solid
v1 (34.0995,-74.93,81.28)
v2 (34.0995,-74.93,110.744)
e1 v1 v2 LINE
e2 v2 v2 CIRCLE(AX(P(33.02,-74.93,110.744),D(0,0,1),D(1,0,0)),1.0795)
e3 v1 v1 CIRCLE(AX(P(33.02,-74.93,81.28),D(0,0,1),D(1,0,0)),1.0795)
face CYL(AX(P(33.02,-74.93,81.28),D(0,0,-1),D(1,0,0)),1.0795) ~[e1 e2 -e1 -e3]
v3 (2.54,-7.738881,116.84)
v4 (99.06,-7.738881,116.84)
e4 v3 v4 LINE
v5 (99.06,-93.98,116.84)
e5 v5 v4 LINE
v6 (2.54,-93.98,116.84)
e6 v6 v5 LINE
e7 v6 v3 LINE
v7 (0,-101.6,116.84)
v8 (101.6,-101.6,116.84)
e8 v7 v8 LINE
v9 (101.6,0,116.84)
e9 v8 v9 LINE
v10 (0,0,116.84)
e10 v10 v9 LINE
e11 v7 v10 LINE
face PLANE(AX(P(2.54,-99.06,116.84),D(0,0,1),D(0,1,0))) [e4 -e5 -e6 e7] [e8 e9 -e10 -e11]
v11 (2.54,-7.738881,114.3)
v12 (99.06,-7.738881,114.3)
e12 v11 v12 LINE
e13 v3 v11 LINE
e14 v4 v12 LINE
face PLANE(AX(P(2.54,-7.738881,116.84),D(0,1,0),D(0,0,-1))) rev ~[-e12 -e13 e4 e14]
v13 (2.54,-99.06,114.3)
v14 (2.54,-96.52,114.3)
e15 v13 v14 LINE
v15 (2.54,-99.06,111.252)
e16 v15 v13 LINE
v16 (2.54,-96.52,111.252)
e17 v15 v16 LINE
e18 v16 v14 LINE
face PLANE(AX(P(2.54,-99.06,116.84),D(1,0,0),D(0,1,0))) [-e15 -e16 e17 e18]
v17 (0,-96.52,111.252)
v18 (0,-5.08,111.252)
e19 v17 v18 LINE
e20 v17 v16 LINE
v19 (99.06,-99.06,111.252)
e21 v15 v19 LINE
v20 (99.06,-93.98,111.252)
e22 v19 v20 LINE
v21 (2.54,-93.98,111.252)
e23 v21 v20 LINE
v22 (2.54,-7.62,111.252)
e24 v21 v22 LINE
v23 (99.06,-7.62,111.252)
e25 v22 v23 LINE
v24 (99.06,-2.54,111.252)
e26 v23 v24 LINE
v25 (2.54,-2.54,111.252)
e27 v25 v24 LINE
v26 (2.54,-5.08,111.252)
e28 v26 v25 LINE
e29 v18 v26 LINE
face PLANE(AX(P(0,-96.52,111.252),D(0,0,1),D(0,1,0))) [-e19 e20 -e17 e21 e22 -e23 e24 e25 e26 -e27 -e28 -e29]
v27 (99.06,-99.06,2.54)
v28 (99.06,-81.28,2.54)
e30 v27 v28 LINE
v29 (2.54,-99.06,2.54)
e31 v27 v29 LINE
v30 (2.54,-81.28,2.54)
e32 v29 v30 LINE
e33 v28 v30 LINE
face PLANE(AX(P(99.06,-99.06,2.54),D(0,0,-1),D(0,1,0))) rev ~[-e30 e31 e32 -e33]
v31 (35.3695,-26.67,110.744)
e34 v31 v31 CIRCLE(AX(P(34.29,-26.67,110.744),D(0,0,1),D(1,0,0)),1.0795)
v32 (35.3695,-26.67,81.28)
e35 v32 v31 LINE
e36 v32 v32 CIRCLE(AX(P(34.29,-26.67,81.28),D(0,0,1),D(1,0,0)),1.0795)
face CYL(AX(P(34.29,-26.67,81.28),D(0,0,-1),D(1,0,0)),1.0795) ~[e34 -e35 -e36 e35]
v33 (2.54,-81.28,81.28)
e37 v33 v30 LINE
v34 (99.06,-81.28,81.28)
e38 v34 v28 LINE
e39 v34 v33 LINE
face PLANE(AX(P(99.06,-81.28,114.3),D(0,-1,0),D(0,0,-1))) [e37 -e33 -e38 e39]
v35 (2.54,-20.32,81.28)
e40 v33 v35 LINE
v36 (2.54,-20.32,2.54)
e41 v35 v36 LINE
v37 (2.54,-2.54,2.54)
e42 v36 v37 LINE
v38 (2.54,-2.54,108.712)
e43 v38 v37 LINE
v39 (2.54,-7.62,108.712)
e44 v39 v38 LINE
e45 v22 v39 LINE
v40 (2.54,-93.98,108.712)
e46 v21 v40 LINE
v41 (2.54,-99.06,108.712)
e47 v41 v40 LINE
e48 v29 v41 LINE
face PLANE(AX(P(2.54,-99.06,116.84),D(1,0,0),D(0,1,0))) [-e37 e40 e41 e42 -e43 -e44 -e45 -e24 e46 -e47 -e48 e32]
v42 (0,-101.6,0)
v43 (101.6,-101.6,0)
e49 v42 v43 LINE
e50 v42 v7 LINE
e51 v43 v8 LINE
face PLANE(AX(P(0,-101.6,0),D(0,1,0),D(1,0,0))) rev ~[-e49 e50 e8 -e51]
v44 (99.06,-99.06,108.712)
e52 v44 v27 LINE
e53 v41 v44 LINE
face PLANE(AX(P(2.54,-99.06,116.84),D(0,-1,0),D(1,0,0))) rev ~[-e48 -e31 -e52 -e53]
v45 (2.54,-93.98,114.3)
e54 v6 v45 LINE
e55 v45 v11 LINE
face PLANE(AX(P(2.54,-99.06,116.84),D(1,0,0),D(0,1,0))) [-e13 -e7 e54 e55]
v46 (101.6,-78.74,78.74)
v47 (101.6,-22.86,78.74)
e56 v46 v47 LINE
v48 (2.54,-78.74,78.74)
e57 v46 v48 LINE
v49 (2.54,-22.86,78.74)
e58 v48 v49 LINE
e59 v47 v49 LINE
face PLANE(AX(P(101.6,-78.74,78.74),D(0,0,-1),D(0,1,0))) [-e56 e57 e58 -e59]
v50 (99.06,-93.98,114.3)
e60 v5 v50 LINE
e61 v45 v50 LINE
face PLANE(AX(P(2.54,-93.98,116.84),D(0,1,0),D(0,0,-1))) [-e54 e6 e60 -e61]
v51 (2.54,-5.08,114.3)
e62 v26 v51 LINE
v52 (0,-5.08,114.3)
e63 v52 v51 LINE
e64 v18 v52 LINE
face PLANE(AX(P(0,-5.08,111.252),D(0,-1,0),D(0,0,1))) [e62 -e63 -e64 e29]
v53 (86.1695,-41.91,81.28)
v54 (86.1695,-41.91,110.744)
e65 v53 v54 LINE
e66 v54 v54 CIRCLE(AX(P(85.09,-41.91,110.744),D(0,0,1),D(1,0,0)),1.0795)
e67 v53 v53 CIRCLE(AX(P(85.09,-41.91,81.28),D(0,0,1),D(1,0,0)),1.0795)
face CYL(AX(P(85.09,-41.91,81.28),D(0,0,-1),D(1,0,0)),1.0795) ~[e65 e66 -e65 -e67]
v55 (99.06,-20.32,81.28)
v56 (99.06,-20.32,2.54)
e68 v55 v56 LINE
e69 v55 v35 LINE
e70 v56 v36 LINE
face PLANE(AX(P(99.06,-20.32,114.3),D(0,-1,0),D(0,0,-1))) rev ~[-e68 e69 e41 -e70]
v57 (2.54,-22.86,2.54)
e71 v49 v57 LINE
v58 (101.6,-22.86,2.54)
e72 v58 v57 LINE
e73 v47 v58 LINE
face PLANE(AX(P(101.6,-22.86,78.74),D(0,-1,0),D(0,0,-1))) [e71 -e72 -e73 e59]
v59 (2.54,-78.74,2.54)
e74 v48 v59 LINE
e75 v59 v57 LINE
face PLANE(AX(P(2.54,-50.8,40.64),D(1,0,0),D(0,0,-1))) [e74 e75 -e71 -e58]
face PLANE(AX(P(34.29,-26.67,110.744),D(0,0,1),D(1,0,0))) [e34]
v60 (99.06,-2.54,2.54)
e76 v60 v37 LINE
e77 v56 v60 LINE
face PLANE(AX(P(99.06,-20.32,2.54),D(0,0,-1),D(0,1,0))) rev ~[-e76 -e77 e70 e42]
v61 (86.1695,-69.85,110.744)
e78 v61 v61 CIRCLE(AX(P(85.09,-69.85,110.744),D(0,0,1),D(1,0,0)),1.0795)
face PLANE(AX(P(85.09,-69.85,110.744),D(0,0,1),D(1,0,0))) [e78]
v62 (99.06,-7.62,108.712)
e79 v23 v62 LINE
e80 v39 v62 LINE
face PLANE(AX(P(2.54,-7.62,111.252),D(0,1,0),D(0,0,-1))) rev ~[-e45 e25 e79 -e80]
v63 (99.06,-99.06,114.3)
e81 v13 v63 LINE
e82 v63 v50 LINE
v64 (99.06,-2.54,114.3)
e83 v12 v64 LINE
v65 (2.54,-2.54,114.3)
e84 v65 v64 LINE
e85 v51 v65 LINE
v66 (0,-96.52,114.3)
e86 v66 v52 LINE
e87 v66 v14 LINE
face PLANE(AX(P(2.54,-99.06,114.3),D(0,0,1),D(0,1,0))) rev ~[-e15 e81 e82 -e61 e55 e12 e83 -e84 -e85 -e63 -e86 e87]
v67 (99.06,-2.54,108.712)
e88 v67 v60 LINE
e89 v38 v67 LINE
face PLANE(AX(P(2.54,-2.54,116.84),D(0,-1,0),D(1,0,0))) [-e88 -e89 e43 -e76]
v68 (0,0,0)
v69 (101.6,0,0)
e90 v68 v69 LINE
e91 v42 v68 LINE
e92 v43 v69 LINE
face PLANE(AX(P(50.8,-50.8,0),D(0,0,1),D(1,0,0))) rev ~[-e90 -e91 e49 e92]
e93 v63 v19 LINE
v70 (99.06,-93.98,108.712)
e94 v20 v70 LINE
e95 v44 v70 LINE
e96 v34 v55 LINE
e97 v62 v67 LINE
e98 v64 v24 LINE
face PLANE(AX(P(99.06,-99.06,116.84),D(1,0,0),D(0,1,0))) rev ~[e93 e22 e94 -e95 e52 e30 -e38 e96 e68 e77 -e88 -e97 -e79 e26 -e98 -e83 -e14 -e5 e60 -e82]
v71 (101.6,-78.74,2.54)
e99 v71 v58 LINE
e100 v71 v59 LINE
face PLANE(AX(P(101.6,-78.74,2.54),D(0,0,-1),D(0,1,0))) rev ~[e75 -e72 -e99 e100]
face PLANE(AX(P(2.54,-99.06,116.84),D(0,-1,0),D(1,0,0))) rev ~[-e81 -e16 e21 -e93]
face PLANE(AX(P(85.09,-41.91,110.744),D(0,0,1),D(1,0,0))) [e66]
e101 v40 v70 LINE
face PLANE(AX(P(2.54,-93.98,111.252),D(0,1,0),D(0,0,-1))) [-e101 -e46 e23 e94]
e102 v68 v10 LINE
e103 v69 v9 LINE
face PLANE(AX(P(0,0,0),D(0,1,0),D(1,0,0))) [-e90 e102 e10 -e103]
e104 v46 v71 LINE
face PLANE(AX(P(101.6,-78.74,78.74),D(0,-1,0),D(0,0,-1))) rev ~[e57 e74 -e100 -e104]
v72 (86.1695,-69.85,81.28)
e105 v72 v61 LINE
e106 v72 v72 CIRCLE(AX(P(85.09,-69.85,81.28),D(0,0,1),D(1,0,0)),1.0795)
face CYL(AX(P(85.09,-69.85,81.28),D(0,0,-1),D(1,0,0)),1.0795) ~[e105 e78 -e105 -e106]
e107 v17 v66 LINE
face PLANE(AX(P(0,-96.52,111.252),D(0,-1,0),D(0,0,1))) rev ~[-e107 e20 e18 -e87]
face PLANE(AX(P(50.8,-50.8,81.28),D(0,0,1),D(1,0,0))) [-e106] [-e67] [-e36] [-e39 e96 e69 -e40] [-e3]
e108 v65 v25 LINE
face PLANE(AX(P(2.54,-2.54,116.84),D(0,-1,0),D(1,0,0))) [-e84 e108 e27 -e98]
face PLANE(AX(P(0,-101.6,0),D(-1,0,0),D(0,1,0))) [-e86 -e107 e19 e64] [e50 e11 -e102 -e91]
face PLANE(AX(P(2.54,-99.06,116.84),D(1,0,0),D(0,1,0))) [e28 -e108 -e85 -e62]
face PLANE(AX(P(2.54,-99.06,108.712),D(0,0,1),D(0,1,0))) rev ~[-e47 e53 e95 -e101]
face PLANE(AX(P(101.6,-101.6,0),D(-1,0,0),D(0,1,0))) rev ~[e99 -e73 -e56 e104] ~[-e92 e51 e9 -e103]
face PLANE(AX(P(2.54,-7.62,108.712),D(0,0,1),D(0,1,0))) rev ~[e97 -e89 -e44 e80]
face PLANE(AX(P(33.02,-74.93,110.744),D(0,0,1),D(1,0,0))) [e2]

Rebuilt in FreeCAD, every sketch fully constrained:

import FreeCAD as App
import Part
import Sketcher

V = App.Vector
Q = App.Units.Quantity

doc = App.newDocument("Part")
body = doc.addObject("PartDesign::Body", "Body")

# Sketch on XY plane
sketch1 = body.newObject("Sketcher::SketchObject", "Sketch")
sketch1.AttachmentSupport = (doc.getObject("XY_Plane"), [""])
sketch1.MapMode = "FlatFace"
sketch1.addGeometry([
    Part.LineSegment(V(0, 0, 0), V(0, -102, 0)),
    Part.LineSegment(V(0, -102, 0), V(102, -102, 0)),
    Part.LineSegment(V(102, -102, 0), V(102, 0, 0)),
    Part.LineSegment(V(102, 0, 0), V(0, 0, 0)),
], False)
sketch1.addConstraint([
    Sketcher.Constraint("Coincident", 0, 2, 1, 1),
    Sketcher.Constraint("Coincident", 1, 2, 2, 1),
    Sketcher.Constraint("Coincident", 2, 2, 3, 1),
    Sketcher.Constraint("Coincident", 3, 2, 0, 1),
    Sketcher.Constraint("Vertical", 0),
    Sketcher.Constraint("Horizontal", 1),
    Sketcher.Constraint("Vertical", 2),
    Sketcher.Constraint("Horizontal", 3),
    Sketcher.Constraint("Coincident", 3, 2, -1, 1),
    Sketcher.Constraint("Equal", 3, 0),
    Sketcher.Constraint("DistanceX", 1, 1, 1, 2, Q("4 in")),
])
pad1 = body.newObject("PartDesign::Pad", "Pad")
pad1.Profile = sketch1
pad1.Length = Q("4.6 in")

# Sketch on YZ plane
sketch2 = body.newObject("Sketcher::SketchObject", "Sketch001")
sketch2.AttachmentSupport = (doc.getObject("YZ_Plane"), [""])
sketch2.MapMode = "FlatFace"
sketch2.AttachmentOffset = App.Placement(V(0, 0, 4 * 25.4), App.Rotation())
sketch2.addGeometry([
    Part.LineSegment(V(-23, 79, 0), V(-79, 79, 0)),
    Part.LineSegment(V(-79, 79, 0), V(-79, 3, 0)),
    Part.LineSegment(V(-79, 3, 0), V(-23, 3, 0)),
    Part.LineSegment(V(-23, 3, 0), V(-23, 79, 0)),
], False)
sketch2.addConstraint([
    Sketcher.Constraint("Coincident", 0, 2, 1, 1),
    Sketcher.Constraint("Coincident", 1, 2, 2, 1),
    Sketcher.Constraint("Coincident", 2, 2, 3, 1),
    Sketcher.Constraint("Coincident", 3, 2, 0, 1),
    Sketcher.Constraint("Horizontal", 0),
    Sketcher.Constraint("Vertical", 1),
    Sketcher.Constraint("Horizontal", 2),
    Sketcher.Constraint("Vertical", 3),
    Sketcher.Constraint("DistanceY", 1, 2, 1, 1, Q("3 in")),
    Sketcher.Constraint("DistanceX", 0, 2, 0, 1, Q("2.2 in")),
    Sketcher.Constraint("DistanceX", 0, 2, -1, 1, Q("3.1 in")),
    Sketcher.Constraint("DistanceY", -1, 1, 0, 2, Q("3.1 in")),
])
pocket1 = body.newObject("PartDesign::Pocket", "Pocket")
pocket1.Profile = sketch2
pocket1.Length = Q("3.9 in")

# Sketch on YZ plane
sketch3 = body.newObject("Sketcher::SketchObject", "Sketch002")
sketch3.AttachmentSupport = (doc.getObject("YZ_Plane"), [""])
sketch3.MapMode = "FlatFace"
sketch3.AttachmentOffset = App.Placement(V(0, 0, 3.9 * 25.4), App.Rotation())
sketch3.addGeometry([
    Part.LineSegment(V(-81, 114, 0), V(-99, 114, 0)),  # 0
    Part.LineSegment(V(-99, 114, 0), V(-99, 3, 0)),  # 1
    Part.LineSegment(V(-99, 3, 0), V(-81, 3, 0)),  # 2
    Part.LineSegment(V(-81, 3, 0), V(-81, 114, 0)),  # 3
    Part.LineSegment(V(-3, 114, 0), V(-20, 114, 0)),  # 4
    Part.LineSegment(V(-20, 114, 0), V(-20, 3, 0)),  # 5
    Part.LineSegment(V(-20, 3, 0), V(-3, 3, 0)),  # 6
    Part.LineSegment(V(-3, 3, 0), V(-3, 114, 0)),  # 7
], False)
sketch3.addConstraint([
    Sketcher.Constraint("Coincident", 0, 2, 1, 1),
    Sketcher.Constraint("Coincident", 1, 2, 2, 1),
    Sketcher.Constraint("Coincident", 2, 2, 3, 1),
    Sketcher.Constraint("Coincident", 3, 2, 0, 1),
    Sketcher.Constraint("Coincident", 4, 2, 5, 1),
    Sketcher.Constraint("Coincident", 5, 2, 6, 1),
    Sketcher.Constraint("Coincident", 6, 2, 7, 1),
    Sketcher.Constraint("Coincident", 7, 2, 4, 1),
    Sketcher.Constraint("Horizontal", 0),
    Sketcher.Constraint("Vertical", 1),
    Sketcher.Constraint("Horizontal", 2),
    Sketcher.Constraint("Vertical", 3),
    Sketcher.Constraint("Horizontal", 4),
    Sketcher.Constraint("Vertical", 5),
    Sketcher.Constraint("Horizontal", 6),
    Sketcher.Constraint("Vertical", 7),
    Sketcher.Constraint("Horizontal", 3, 2, 4, 2),
    Sketcher.Constraint("Horizontal", 2, 2, 5, 2),
    Sketcher.Constraint("Equal", 2, 4),
    Sketcher.Constraint("DistanceX", 0, 2, 0, 1, Q("0.7 in")),
    Sketcher.Constraint("DistanceY", 1, 2, 1, 1, Q("4.4 in")),
    Sketcher.Constraint("DistanceX", 0, 2, -1, 1, Q("3.9 in")),
    Sketcher.Constraint("DistanceY", -1, 1, 0, 2, Q("4.5 in")),
    Sketcher.Constraint("DistanceX", 4, 2, -1, 1, Q("0.8 in")),
])
pocket2 = body.newObject("PartDesign::Pocket", "Pocket001")
pocket2.Profile = sketch3
pocket2.Length = Q("3.8 in")

# Sketch on XY plane
sketch4 = body.newObject("Sketcher::SketchObject", "Sketch003")
sketch4.AttachmentSupport = (doc.getObject("XY_Plane"), [""])
sketch4.MapMode = "FlatFace"
sketch4.AttachmentOffset = App.Placement(V(0, 0, 4.6 * 25.4), App.Rotation())
sketch4.addGeometry([
    Part.LineSegment(V(3, -3, 0), V(3, -99, 0)),
    Part.LineSegment(V(3, -99, 0), V(99, -99, 0)),
    Part.LineSegment(V(99, -99, 0), V(99, -3, 0)),
    Part.LineSegment(V(99, -3, 0), V(3, -3, 0)),
], False)
sketch4.addConstraint([
    Sketcher.Constraint("Coincident", 0, 2, 1, 1),
    Sketcher.Constraint("Coincident", 1, 2, 2, 1),
    Sketcher.Constraint("Coincident", 2, 2, 3, 1),
    Sketcher.Constraint("Coincident", 3, 2, 0, 1),
    Sketcher.Constraint("Vertical", 0),
    Sketcher.Constraint("Horizontal", 1),
    Sketcher.Constraint("Vertical", 2),
    Sketcher.Constraint("Horizontal", 3),
    Sketcher.Constraint("Equal", 3, 0),
    Sketcher.Constraint("DistanceX", 1, 1, 1, 2, Q("3.8 in")),
    Sketcher.Constraint("DistanceX", -1, 1, 0, 2, Q("0.1 in")),
    Sketcher.Constraint("DistanceY", 0, 2, -1, 1, Q("3.9 in")),
])
pocket3 = body.newObject("PartDesign::Pocket", "Pocket002")
pocket3.Profile = sketch4
pocket3.Length = Q("1.4 in")

# Sketch on XY plane
sketch5 = body.newObject("Sketcher::SketchObject", "Sketch004")
sketch5.AttachmentSupport = (doc.getObject("XY_Plane"), [""])
sketch5.MapMode = "FlatFace"
sketch5.AttachmentOffset = App.Placement(V(0, 0, 3.2 * 25.4), App.Rotation())
sketch5.addGeometry([
    Part.Circle(V(85.1, -41.9, 0), V(0, 0, 1), 1.1),
    Part.Circle(V(85.1, -69.8, 0), V(0, 0, 1), 1.1),
    Part.Circle(V(34.3, -26.7, 0), V(0, 0, 1), 1.1),
    Part.Circle(V(33, -74.9, 0), V(0, 0, 1), 1.1),
], False)
sketch5.addConstraint([
    Sketcher.Constraint("Equal", 0, 1),
    Sketcher.Constraint("Equal", 1, 2),
    Sketcher.Constraint("Equal", 2, 3),
    Sketcher.Constraint("Vertical", 0, 3, 1, 3),
    Sketcher.Constraint("Diameter", 0, Q("0.085 in")),
    Sketcher.Constraint("DistanceX", 2, 3, 0, 3, Q("2 in")),
    Sketcher.Constraint("DistanceX", -1, 1, 3, 3, Q("1.3 in")),
    Sketcher.Constraint("DistanceY", 1, 3, 0, 3, Q("1.1 in")),
    Sketcher.Constraint("DistanceY", 0, 3, 2, 3, Q("0.6 in")),
    Sketcher.Constraint("DistanceY", 3, 3, 2, 3, Q("1.9 in")),
    Sketcher.Constraint("DistanceX", -1, 1, 0, 3, Q("3.35 in")),
    Sketcher.Constraint("DistanceY", 0, 3, -1, 1, Q("1.65 in")),
])
pad2 = body.newObject("PartDesign::Pad", "Pad001")
pad2.Profile = sketch5
pad2.Length = Q("1.16 in")

# Sketch on YZ plane
sketch6 = body.newObject("Sketcher::SketchObject", "Sketch005")
sketch6.AttachmentSupport = (doc.getObject("YZ_Plane"), [""])
sketch6.MapMode = "FlatFace"
sketch6.addGeometry([
    Part.LineSegment(V(-5.1, 111.3, 0), V(-96.5, 111.3, 0)),
    Part.LineSegment(V(-96.5, 111.3, 0), V(-96.5, 114.3, 0)),
    Part.LineSegment(V(-96.5, 114.3, 0), V(-5.1, 114.3, 0)),
    Part.LineSegment(V(-5.1, 114.3, 0), V(-5.1, 111.3, 0)),
], False)
sketch6.addConstraint([
    Sketcher.Constraint("Coincident", 0, 2, 1, 1),
    Sketcher.Constraint("Coincident", 1, 2, 2, 1),
    Sketcher.Constraint("Coincident", 2, 2, 3, 1),
    Sketcher.Constraint("Coincident", 3, 2, 0, 1),
    Sketcher.Constraint("Horizontal", 0),
    Sketcher.Constraint("Vertical", 1),
    Sketcher.Constraint("Horizontal", 2),
    Sketcher.Constraint("Vertical", 3),
    Sketcher.Constraint("DistanceX", 0, 2, 0, 1, Q("3.6 in")),
    Sketcher.Constraint("DistanceY", 1, 1, 1, 2, Q("0.12 in")),
    Sketcher.Constraint("DistanceX", 0, 2, -1, 1, Q("3.8 in")),
    Sketcher.Constraint("DistanceY", -1, 1, 1, 2, Q("4.5 in")),
])
pocket4 = body.newObject("PartDesign::Pocket", "Pocket003")
pocket4.Profile = sketch6
pocket4.Length = Q("0.1 in")
pocket4.Reversed = True

# Sketch on YZ plane
sketch7 = body.newObject("Sketcher::SketchObject", "Sketch006")
sketch7.AttachmentSupport = (doc.getObject("YZ_Plane"), [""])
sketch7.MapMode = "FlatFace"
sketch7.AttachmentOffset = App.Placement(V(0, 0, 0.1 * 25.4), App.Rotation())
sketch7.addGeometry([
    Part.LineSegment(V(-94, 116.8, 0), V(-99.1, 116.8, 0)),  # 0
    Part.LineSegment(V(-99.1, 116.8, 0), V(-99.1, 114.3, 0)),  # 1
    Part.LineSegment(V(-99.1, 114.3, 0), V(-94, 114.3, 0)),  # 2
    Part.LineSegment(V(-94, 114.3, 0), V(-94, 116.8, 0)),  # 3
    Part.LineSegment(V(-94, 111.3, 0), V(-99.1, 111.3, 0)),  # 4
    Part.LineSegment(V(-99.1, 111.3, 0), V(-99.1, 108.7, 0)),  # 5
    Part.LineSegment(V(-99.1, 108.7, 0), V(-94, 108.7, 0)),  # 6
    Part.LineSegment(V(-94, 108.7, 0), V(-94, 111.3, 0)),  # 7
    Part.LineSegment(V(-2.5, 116.8, 0), V(-7.7, 116.8, 0)),  # 8
    Part.LineSegment(V(-7.7, 116.8, 0), V(-7.7, 114.3, 0)),  # 9
    Part.LineSegment(V(-7.7, 114.3, 0), V(-2.5, 114.3, 0)),  # 10
    Part.LineSegment(V(-2.5, 114.3, 0), V(-2.5, 116.8, 0)),  # 11
    Part.LineSegment(V(-2.5, 111.3, 0), V(-7.6, 111.3, 0)),  # 12
    Part.LineSegment(V(-7.6, 111.3, 0), V(-7.6, 108.7, 0)),  # 13
    Part.LineSegment(V(-7.6, 108.7, 0), V(-2.5, 108.7, 0)),  # 14
    Part.LineSegment(V(-2.5, 108.7, 0), V(-2.5, 111.3, 0)),  # 15
], False)
sketch7.addConstraint([
    Sketcher.Constraint("Coincident", 0, 2, 1, 1),
    Sketcher.Constraint("Coincident", 1, 2, 2, 1),
    Sketcher.Constraint("Coincident", 2, 2, 3, 1),
    Sketcher.Constraint("Coincident", 3, 2, 0, 1),
    Sketcher.Constraint("Coincident", 4, 2, 5, 1),
    Sketcher.Constraint("Coincident", 5, 2, 6, 1),
    Sketcher.Constraint("Coincident", 6, 2, 7, 1),
    Sketcher.Constraint("Coincident", 7, 2, 4, 1),
    Sketcher.Constraint("Coincident", 8, 2, 9, 1),
    Sketcher.Constraint("Coincident", 9, 2, 10, 1),
    Sketcher.Constraint("Coincident", 10, 2, 11, 1),
    Sketcher.Constraint("Coincident", 11, 2, 8, 1),
    Sketcher.Constraint("Coincident", 12, 2, 13, 1),
    Sketcher.Constraint("Coincident", 13, 2, 14, 1),
    Sketcher.Constraint("Coincident", 14, 2, 15, 1),
    Sketcher.Constraint("Coincident", 15, 2, 12, 1),
    Sketcher.Constraint("Horizontal", 0),
    Sketcher.Constraint("Vertical", 1),
    Sketcher.Constraint("Horizontal", 2),
    Sketcher.Constraint("Vertical", 3),
    Sketcher.Constraint("Horizontal", 4),
    Sketcher.Constraint("Vertical", 5),
    Sketcher.Constraint("Horizontal", 6),
    Sketcher.Constraint("Vertical", 7),
    Sketcher.Constraint("Horizontal", 8),
    Sketcher.Constraint("Vertical", 9),
    Sketcher.Constraint("Horizontal", 10),
    Sketcher.Constraint("Vertical", 11),
    Sketcher.Constraint("Horizontal", 12),
    Sketcher.Constraint("Vertical", 13),
    Sketcher.Constraint("Horizontal", 14),
    Sketcher.Constraint("Vertical", 15),
    Sketcher.Constraint("Horizontal", 3, 2, 8, 2),
    Sketcher.Constraint("Horizontal", 2, 2, 9, 2),
    Sketcher.Constraint("Horizontal", 7, 2, 12, 2),
    Sketcher.Constraint("Horizontal", 6, 2, 13, 2),
    Sketcher.Constraint("Vertical", 1, 2, 4, 2),
    Sketcher.Constraint("Vertical", 3, 2, 6, 2),
    Sketcher.Constraint("Vertical", 11, 2, 14, 2),
    Sketcher.Constraint("Equal", 6, 12),
    Sketcher.Constraint("Equal", 3, 5),
    Sketcher.Constraint("DistanceX", 0, 2, 0, 1, Q("0.2 in")),
    Sketcher.Constraint("DistanceY", 1, 2, 1, 1, Q("0.1 in")),
    Sketcher.Constraint("DistanceX", 0, 2, -1, 1, Q("3.9 in")),
    Sketcher.Constraint("DistanceY", -1, 1, 0, 2, Q("4.6 in")),
    Sketcher.Constraint("DistanceX", 10, 2, -1, 1, Q("0.1 in")),
    Sketcher.Constraint("DistanceY", -1, 1, 4, 2, Q("4.38 in")),
    Sketcher.Constraint("DistanceX", 8, 2, 8, 1, Q("5.198881 mm")),
])
pad3 = body.newObject("PartDesign::Pad", "Pad002")
pad3.Profile = sketch7
pad3.Length = Q("3.8 in")

doc.recompute()
